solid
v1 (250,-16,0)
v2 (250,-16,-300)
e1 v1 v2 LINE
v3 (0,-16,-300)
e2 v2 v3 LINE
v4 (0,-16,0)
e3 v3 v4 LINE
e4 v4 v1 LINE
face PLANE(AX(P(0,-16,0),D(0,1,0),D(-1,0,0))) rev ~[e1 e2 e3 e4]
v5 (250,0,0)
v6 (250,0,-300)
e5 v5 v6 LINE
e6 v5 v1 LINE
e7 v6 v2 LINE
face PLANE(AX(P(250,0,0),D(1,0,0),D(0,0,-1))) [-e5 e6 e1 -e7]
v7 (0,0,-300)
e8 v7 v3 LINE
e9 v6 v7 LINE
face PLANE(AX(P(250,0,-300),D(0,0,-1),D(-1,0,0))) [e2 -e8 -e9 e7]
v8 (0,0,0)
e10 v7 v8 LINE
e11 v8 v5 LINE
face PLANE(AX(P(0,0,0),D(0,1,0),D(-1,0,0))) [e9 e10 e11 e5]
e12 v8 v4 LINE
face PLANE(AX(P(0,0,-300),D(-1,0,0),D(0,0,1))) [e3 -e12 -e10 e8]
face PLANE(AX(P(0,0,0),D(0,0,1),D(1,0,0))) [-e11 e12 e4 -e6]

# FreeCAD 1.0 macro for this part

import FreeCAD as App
import Part
import Sketcher
Q = App.Units.Quantity

doc = App.newDocument("Part")
body = doc.addObject("PartDesign::Body", "Body")

# Sketch on XZ plane
sketch1 = body.newObject("Sketcher::SketchObject", "Sketch")
sketch1.AttachmentSupport = (doc.getObject("XZ_Plane"), [""])
sketch1.MapMode = "FlatFace"
sketch1.addGeometry([
    Part.LineSegment(App.Vector(0, -300, 0), App.Vector(0, 0, 0)),
    Part.LineSegment(App.Vector(0, 0, 0), App.Vector(250, 0, 0)),
    Part.LineSegment(App.Vector(250, 0, 0), App.Vector(250, -300, 0)),
    Part.LineSegment(App.Vector(250, -300, 0), App.Vector(0, -300, 0)),
], False)
sketch1.addConstraint([
    Sketcher.Constraint("Coincident", 0, 2, 1, 1),
    Sketcher.Constraint("Coincident", 1, 2, 2, 1),
    Sketcher.Constraint("Coincident", 2, 2, 3, 1),
    Sketcher.Constraint("Coincident", 3, 2, 0, 1),
    Sketcher.Constraint("Vertical", 0),
    Sketcher.Constraint("Horizontal", 1),
    Sketcher.Constraint("Vertical", 2),
    Sketcher.Constraint("Horizontal", 3),
    Sketcher.Constraint("Coincident", 0, 2, -1, 1),
    Sketcher.Constraint("DistanceX", 1, 1, 1, 2, Q("250 mm")),
    Sketcher.Constraint("DistanceY", 0, 1, 0, 2, Q("300 mm")),
])
pad1 = body.newObject("PartDesign::Pad", "Pad")
pad1.Profile = sketch1
pad1.Length = 16

doc.recompute()
